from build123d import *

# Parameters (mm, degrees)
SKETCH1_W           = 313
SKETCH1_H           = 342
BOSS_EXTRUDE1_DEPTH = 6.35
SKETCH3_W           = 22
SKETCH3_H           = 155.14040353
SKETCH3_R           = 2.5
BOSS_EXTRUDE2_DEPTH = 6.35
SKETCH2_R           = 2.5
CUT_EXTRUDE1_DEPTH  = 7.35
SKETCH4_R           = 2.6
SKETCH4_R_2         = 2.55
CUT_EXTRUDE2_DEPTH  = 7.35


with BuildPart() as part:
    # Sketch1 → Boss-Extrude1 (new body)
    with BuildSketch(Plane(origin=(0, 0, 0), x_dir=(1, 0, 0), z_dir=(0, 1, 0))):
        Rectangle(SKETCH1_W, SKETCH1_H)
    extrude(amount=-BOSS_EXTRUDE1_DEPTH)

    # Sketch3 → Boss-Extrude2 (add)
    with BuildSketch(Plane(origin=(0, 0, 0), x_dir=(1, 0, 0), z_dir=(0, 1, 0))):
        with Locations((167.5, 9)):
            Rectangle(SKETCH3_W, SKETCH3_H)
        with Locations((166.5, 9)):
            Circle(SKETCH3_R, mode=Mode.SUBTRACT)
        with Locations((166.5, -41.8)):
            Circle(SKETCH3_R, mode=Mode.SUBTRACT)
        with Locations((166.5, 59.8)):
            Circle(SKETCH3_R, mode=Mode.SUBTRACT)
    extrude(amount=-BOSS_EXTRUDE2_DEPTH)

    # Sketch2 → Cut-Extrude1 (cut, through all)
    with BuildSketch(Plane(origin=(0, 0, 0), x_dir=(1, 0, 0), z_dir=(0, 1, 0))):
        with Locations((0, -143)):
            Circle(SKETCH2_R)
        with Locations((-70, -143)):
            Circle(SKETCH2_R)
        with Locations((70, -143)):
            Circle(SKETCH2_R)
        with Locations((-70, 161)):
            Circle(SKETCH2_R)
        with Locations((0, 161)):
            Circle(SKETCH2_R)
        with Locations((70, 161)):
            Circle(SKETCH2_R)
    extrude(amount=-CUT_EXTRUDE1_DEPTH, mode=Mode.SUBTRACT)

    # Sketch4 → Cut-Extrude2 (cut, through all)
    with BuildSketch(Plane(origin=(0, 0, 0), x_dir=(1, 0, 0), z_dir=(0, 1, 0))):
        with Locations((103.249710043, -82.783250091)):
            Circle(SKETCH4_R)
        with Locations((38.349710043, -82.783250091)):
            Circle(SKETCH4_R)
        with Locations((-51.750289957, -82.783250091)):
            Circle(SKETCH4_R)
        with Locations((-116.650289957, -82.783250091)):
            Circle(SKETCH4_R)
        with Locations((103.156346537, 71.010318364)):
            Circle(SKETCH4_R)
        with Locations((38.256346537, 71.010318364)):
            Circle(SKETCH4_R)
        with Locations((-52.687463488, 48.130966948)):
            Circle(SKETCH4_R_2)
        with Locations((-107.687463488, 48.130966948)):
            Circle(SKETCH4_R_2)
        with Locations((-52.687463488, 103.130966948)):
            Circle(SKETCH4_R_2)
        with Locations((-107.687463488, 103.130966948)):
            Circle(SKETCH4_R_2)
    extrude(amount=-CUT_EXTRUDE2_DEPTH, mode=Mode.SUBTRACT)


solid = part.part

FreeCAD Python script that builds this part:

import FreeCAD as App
import Part
import Sketcher
Q = App.Units.Quantity


def add_polygon(sketch, points):
    """Adds a closed chain of lines whose ends are joined by coincident constraints."""
    first, n = sketch.GeometryCount, len(points)
    for a, b in zip(points, points[1:] + points[:1]):
        sketch.addGeometry(Part.LineSegment(App.Vector(*a, 0), App.Vector(*b, 0)), False)
    for i in range(n):
        sketch.addConstraint(Sketcher.Constraint("Coincident", first + i, 2, first + (i + 1) % n, 1))

doc = App.newDocument("Part")
body = doc.addObject("PartDesign::Body", "Body")

# Sketch on XZ plane
sketch1 = body.newObject("Sketcher::SketchObject", "Sketch")
sketch1.AttachmentSupport = (doc.getObject("XZ_Plane"), [""])
sketch1.MapMode = "FlatFace"
add_polygon(sketch1, [(-156.5, -171), (-156.5, 171), (156.5, 171), (156.5, -171)])  # lines 0-3
sketch1.addConstraint([
    Sketcher.Constraint("Vertical", 0),
    Sketcher.Constraint("Horizontal", 1),
    Sketcher.Constraint("Vertical", 2),
    Sketcher.Constraint("Horizontal", 3),
    Sketcher.Constraint("Symmetric", 0, 2, 2, 2, -1, 1),
    Sketcher.Constraint("DistanceX", 1, 1, 1, 2, Q("313 mm")),
    Sketcher.Constraint("DistanceY", 0, 1, 0, 2, Q("342 mm")),
])
pad1 = body.newObject("PartDesign::Pad", "Pad")
pad1.Profile = sketch1
pad1.Length = 6.35

# Sketch on XZ plane
sketch2 = body.newObject("Sketcher::SketchObject", "Sketch001")
sketch2.AttachmentSupport = (doc.getObject("XZ_Plane"), [""])
sketch2.MapMode = "FlatFace"
add_polygon(sketch2, [(156.5, -86.570202), (156.5, 68.570202), (178.5, 68.570202), (178.5, -86.570202)])  # lines 0-3
sketch2.addGeometry(Part.Circle(App.Vector(166.5, 41.8, 0), App.Vector(0, 0, 1), 2.5), False)  # 4
sketch2.addGeometry(Part.Circle(App.Vector(166.5, -9, 0), App.Vector(0, 0, 1), 2.5), False)  # 5
sketch2.addGeometry(Part.Circle(App.Vector(166.5, -59.8, 0), App.Vector(0, 0, 1), 2.5), False)  # 6
sketch2.addConstraint([
    Sketcher.Constraint("Vertical", 0),
    Sketcher.Constraint("Horizontal", 1),
    Sketcher.Constraint("Vertical", 2),
    Sketcher.Constraint("Horizontal", 3),
    Sketcher.Constraint("Equal", 4, 5),
    Sketcher.Constraint("Equal", 5, 6),
    Sketcher.Constraint("Vertical", 4, 3, 5, 3),
    Sketcher.Constraint("Vertical", 5, 3, 6, 3),
    Sketcher.Constraint("Diameter", 4, Q("5 mm")),
    Sketcher.Constraint("DistanceX", 1, 1, 1, 2, Q("22 mm")),
    Sketcher.Constraint("DistanceY", 5, 3, -1, 1, Q("9 mm")),
    Sketcher.Constraint("DistanceX", 0, 2, 4, 3, Q("10 mm")),
    Sketcher.Constraint("DistanceX", -1, 1, 4, 3, Q("166.5 mm")),
    Sketcher.Constraint("DistanceY", -1, 1, 4, 3, Q("41.8 mm")),
    Sketcher.Constraint("DistanceY", 6, 3, -1, 1, Q("59.8 mm")),
    Sketcher.Constraint("DistanceY", -1, 1, 0, 2, Q("68.570202 mm")),
    Sketcher.Constraint("DistanceY", 2, 2, -1, 1, Q("86.570202 mm")),
])
pad2 = body.newObject("PartDesign::Pad", "Pad001")
pad2.Profile = sketch2
pad2.Length = 6.35

# Sketch on XZ plane
sketch3 = body.newObject("Sketcher::SketchObject", "Sketch002")
sketch3.AttachmentSupport = (doc.getObject("XZ_Plane"), [""])
sketch3.MapMode = "FlatFace"
sketch3.addGeometry([
    Part.Circle(App.Vector(0, 143, 0), App.Vector(0, 0, 1), 2.5),  # 0
    Part.Circle(App.Vector(-70, 143, 0), App.Vector(0, 0, 1), 2.5),  # 1
    Part.Circle(App.Vector(70, 143, 0), App.Vector(0, 0, 1), 2.5),  # 2
    Part.Circle(App.Vector(-70, -161, 0), App.Vector(0, 0, 1), 2.5),  # 3
    Part.Circle(App.Vector(0, -161, 0), App.Vector(0, 0, 1), 2.5),  # 4
    Part.Circle(App.Vector(70, -161, 0), App.Vector(0, 0, 1), 2.5),  # 5
], False)
sketch3.addConstraint([
    Sketcher.Constraint("Equal", 0, 1),
    Sketcher.Constraint("Equal", 1, 2),
    Sketcher.Constraint("Equal", 2, 3),
    Sketcher.Constraint("Equal", 3, 4),
    Sketcher.Constraint("Equal", 4, 5),
    Sketcher.Constraint("Symmetric", 1, 3, 2, 3, -2),
    Sketcher.Constraint("Symmetric", 3, 3, 5, 3, -2),
    Sketcher.Constraint("PointOnObject", 0, 3, -2),
    Sketcher.Constraint("PointOnObject", 4, 3, -2),
    Sketcher.Constraint("Horizontal", 0, 3, 1, 3),
    Sketcher.Constraint("Horizontal", 3, 3, 4, 3),
    Sketcher.Constraint("Vertical", 1, 3, 3, 3),
    Sketcher.Constraint("Diameter", 0, Q("5 mm")),
    Sketcher.Constraint("DistanceY", -1, 1, 0, 3, Q("143 mm")),
    Sketcher.Constraint("DistanceX", 1, 3, -1, 1, Q("70 mm")),
    Sketcher.Constraint("DistanceY", 3, 3, -1, 1, Q("161 mm")),
])
pocket1 = body.newObject("PartDesign::Pocket", "Pocket")
pocket1.Profile = sketch3
pocket1.Type = "ThroughAll"
pocket1.Reversed = True

# Sketch on XZ plane
sketch4 = body.newObject("Sketcher::SketchObject", "Sketch003")
sketch4.AttachmentSupport = (doc.getObject("XZ_Plane"), [""])
sketch4.MapMode = "FlatFace"
sketch4.addGeometry([
    Part.Circle(App.Vector(103.24971, 82.78325, 0), App.Vector(0, 0, 1), 2.6),  # 0
    Part.Circle(App.Vector(38.34971, 82.78325, 0), App.Vector(0, 0, 1), 2.6),  # 1
    Part.Circle(App.Vector(-51.75029, 82.78325, 0), App.Vector(0, 0, 1), 2.6),  # 2
    Part.Circle(App.Vector(-116.65029, 82.78325, 0), App.Vector(0, 0, 1), 2.6),  # 3
    Part.Circle(App.Vector(103.156347, -71.010318, 0), App.Vector(0, 0, 1), 2.6),  # 4
    Part.Circle(App.Vector(38.256347, -71.010318, 0), App.Vector(0, 0, 1), 2.6),  # 5
    Part.Circle(App.Vector(-52.687463, -48.130967, 0), App.Vector(0, 0, 1), 2.55),  # 6
    Part.Circle(App.Vector(-107.687463, -48.130967, 0), App.Vector(0, 0, 1), 2.55),  # 7
    Part.Circle(App.Vector(-52.687463, -103.130967, 0), App.Vector(0, 0, 1), 2.55),  # 8
    Part.Circle(App.Vector(-107.687463, -103.130967, 0), App.Vector(0, 0, 1), 2.55),  # 9
], False)
sketch4.addConstraint([
    Sketcher.Constraint("Equal", 0, 1),
    Sketcher.Constraint("Equal", 1, 2),
    Sketcher.Constraint("Equal", 2, 3),
    Sketcher.Constraint("Equal", 3, 4),
    Sketcher.Constraint("Equal", 4, 5),
    Sketcher.Constraint("Equal", 6, 7),
    Sketcher.Constraint("Equal", 7, 8),
    Sketcher.Constraint("Equal", 8, 9),
    Sketcher.Constraint("Horizontal", 0, 3, 1, 3),
    Sketcher.Constraint("Horizontal", 1, 3, 2, 3),
    Sketcher.Constraint("Horizontal", 2, 3, 3, 3),
    Sketcher.Constraint("Horizontal", 4, 3, 5, 3),
    Sketcher.Constraint("Horizontal", 6, 3, 7, 3),
    Sketcher.Constraint("Horizontal", 8, 3, 9, 3),
    Sketcher.Constraint("Vertical", 6, 3, 8, 3),
    Sketcher.Constraint("Vertical", 7, 3, 9, 3),
    Sketcher.Constraint("Diameter", 0, Q("5.2 mm")),
    Sketcher.Constraint("Diameter", 6, Q("5.1 mm")),
    Sketcher.Constraint("DistanceX", 2, 3, 0, 3, Q("155 mm")),
    Sketcher.Constraint("DistanceX", 3, 3, 1, 3, Q("155 mm")),
    Sketcher.Constraint("DistanceX", 7, 3, 6, 3, Q("55 mm")),
    Sketcher.Constraint("DistanceY", 8, 3, 6, 3, Q("55 mm")),
    Sketcher.Constraint("DistanceX", 1, 3, 0, 3, Q("64.9 mm")),
    Sketcher.Constraint("DistanceX", 5, 3, 4, 3, Q("64.9 mm")),
    Sketcher.Constraint("DistanceX", -1, 1, 0, 3, Q("103.24971 mm")),
    Sketcher.Constraint("DistanceY", -1, 1, 0, 3, Q("82.78325 mm")),
    Sketcher.Constraint("DistanceY", 4, 3, -1, 1, Q("71.010318 mm")),
    Sketcher.Constraint("DistanceX", 6, 3, 5, 3, Q("90.94381 mm")),
    Sketcher.Constraint("DistanceY", 5, 3, 6, 3, Q("22.879351 mm")),
    Sketcher.Constraint("DistanceX", -1, 1, 4, 3, Q("103.156347 mm")),
])
pocket2 = body.newObject("PartDesign::Pocket", "Pocket001")
pocket2.Profile = sketch4
pocket2.Type = "ThroughAll"
pocket2.Reversed = True

doc.recompute()
